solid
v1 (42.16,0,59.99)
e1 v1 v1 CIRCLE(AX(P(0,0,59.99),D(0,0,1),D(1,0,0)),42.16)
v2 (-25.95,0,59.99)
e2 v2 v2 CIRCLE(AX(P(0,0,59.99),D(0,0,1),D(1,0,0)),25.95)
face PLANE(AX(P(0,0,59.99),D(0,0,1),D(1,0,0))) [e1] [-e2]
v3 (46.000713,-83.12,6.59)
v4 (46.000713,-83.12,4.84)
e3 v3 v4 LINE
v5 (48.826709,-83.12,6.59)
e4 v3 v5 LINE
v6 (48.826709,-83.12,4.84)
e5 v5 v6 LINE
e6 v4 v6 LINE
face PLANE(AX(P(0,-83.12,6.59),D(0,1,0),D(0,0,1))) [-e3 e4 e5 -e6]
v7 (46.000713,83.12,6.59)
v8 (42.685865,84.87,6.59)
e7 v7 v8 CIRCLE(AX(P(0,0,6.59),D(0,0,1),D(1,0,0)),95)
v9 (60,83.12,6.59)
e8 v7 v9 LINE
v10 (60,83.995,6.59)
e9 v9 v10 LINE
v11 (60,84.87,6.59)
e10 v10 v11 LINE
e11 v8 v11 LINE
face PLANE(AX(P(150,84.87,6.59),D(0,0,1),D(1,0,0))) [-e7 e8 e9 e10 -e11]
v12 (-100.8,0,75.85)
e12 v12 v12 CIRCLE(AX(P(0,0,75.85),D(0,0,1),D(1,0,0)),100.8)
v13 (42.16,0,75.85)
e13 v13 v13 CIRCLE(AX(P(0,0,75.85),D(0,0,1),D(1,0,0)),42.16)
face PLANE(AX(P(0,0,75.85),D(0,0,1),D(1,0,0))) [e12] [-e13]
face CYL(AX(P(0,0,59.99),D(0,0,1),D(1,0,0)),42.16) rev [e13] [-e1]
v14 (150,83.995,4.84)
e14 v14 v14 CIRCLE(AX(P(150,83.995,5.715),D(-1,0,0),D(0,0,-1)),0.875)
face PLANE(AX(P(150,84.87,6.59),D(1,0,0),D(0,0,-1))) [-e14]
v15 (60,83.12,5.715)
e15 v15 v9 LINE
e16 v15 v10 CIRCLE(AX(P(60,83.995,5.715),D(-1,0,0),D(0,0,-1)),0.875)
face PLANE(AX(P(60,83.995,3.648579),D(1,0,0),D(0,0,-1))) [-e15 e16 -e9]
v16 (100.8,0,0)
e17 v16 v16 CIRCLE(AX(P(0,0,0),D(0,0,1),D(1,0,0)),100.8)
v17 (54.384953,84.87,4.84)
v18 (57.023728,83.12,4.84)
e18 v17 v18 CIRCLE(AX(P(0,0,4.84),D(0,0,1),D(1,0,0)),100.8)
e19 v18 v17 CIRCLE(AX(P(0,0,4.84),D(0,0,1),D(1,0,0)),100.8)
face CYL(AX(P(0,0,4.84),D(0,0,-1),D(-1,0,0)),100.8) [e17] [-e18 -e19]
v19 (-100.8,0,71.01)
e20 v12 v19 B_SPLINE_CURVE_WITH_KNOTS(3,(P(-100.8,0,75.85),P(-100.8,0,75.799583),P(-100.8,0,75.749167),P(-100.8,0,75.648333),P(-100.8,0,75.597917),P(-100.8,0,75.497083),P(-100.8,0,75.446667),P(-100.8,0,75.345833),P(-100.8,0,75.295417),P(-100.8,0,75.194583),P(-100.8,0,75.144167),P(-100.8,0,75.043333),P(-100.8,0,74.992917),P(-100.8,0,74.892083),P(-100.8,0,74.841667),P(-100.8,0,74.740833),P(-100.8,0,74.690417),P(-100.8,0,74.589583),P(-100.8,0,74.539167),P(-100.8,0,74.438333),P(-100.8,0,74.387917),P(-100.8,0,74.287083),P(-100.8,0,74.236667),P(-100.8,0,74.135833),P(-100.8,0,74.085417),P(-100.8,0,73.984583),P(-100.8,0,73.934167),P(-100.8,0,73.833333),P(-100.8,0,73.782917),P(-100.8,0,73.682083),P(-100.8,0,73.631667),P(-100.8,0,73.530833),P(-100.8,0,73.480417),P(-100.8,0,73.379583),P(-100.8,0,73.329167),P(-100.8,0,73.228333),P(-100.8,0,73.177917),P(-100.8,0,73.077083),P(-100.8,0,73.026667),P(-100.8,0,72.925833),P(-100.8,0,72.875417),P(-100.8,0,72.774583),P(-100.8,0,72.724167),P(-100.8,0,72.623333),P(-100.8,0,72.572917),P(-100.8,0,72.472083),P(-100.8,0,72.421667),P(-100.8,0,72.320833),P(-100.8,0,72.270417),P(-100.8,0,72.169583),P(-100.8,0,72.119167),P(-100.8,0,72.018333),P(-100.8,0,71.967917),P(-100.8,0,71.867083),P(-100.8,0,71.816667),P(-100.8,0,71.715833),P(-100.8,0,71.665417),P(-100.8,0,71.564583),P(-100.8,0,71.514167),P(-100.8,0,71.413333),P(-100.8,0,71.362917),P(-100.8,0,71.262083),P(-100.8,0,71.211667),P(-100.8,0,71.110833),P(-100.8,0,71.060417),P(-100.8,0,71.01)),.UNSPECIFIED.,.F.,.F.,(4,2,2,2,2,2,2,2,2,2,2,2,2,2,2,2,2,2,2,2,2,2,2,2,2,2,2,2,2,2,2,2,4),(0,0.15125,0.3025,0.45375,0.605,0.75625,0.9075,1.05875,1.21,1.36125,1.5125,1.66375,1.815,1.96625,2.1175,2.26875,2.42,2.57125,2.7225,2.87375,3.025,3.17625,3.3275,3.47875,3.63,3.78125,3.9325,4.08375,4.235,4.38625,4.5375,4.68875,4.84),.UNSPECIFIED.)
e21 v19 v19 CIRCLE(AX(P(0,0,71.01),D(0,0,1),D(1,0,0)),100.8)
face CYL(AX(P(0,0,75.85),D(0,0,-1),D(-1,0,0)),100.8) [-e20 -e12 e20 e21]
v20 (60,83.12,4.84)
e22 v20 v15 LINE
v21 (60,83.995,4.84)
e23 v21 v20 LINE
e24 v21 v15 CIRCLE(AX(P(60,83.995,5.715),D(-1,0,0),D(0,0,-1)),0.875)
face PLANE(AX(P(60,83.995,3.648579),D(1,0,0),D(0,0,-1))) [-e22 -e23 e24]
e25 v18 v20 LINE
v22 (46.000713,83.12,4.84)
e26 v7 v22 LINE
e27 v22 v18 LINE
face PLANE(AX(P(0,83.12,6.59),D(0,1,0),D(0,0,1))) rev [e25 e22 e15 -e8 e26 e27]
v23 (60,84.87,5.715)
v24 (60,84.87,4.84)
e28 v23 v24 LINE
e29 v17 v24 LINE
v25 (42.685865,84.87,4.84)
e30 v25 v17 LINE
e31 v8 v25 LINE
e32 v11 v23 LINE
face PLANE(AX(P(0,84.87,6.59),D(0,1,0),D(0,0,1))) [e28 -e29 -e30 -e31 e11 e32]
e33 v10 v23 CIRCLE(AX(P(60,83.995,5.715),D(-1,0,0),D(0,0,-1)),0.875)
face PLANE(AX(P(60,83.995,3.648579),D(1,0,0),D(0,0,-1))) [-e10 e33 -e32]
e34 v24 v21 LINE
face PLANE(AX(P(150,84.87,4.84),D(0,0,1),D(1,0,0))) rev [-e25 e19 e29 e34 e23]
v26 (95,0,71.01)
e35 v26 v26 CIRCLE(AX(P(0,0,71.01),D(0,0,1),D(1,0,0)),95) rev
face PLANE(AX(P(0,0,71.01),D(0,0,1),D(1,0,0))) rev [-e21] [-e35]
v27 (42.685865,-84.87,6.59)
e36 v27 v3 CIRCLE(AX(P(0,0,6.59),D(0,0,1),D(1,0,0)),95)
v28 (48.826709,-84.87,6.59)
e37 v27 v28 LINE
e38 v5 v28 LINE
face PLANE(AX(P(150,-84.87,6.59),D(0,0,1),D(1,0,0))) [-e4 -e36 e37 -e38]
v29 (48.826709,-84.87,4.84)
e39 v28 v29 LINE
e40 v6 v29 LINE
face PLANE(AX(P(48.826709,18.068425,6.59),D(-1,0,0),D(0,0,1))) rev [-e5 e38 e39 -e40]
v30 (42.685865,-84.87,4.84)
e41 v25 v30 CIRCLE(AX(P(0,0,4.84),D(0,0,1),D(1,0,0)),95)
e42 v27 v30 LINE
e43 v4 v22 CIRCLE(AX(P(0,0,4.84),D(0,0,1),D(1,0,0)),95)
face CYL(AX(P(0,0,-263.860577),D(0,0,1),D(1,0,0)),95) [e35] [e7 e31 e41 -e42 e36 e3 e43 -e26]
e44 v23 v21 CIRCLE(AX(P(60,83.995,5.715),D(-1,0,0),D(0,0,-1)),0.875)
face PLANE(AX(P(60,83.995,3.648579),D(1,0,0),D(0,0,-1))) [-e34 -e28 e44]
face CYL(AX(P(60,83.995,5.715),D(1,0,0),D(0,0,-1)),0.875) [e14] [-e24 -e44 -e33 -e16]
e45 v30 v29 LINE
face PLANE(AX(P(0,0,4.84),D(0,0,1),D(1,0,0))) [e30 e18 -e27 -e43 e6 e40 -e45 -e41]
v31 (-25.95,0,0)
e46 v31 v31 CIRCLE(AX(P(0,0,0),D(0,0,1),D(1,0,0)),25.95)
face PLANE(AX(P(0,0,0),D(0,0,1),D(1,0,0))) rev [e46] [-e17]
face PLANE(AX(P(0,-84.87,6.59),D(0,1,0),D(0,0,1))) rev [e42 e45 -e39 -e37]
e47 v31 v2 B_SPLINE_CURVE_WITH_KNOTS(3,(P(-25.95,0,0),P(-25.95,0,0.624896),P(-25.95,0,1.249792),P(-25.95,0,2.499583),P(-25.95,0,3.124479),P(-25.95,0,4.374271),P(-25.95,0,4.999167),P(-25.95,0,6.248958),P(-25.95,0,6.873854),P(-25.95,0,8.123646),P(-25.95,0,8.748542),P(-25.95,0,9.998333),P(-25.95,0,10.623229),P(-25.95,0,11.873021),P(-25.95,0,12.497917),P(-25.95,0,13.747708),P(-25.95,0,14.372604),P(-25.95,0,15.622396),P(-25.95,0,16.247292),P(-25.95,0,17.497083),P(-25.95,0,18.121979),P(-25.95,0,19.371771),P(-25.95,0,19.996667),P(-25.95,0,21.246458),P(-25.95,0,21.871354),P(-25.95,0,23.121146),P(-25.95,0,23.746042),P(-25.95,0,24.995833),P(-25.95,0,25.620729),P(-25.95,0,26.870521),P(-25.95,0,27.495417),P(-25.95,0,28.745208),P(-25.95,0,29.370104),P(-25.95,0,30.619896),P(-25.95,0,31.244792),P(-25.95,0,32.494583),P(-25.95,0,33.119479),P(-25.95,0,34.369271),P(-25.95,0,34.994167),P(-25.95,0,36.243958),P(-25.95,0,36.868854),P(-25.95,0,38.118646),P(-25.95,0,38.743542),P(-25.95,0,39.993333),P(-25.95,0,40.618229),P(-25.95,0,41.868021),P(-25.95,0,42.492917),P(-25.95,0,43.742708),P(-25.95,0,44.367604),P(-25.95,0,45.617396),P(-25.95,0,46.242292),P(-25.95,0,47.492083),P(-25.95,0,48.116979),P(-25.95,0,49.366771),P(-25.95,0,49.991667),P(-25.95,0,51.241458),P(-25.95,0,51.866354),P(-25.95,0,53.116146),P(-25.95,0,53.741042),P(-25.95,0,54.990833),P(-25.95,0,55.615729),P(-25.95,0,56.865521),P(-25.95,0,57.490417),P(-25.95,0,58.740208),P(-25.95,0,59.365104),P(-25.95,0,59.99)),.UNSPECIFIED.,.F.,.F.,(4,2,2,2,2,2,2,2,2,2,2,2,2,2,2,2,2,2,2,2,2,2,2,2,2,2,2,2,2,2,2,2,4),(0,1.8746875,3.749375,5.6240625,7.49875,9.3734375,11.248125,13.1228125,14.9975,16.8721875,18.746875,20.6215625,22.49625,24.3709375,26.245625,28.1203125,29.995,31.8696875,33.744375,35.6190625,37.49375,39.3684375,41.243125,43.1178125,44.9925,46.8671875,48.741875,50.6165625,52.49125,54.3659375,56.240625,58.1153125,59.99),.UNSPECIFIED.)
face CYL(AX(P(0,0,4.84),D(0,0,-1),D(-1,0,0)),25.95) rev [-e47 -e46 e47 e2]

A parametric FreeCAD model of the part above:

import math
import FreeCAD as App
import Part
import Sketcher
from FreeCAD import Vector


def add_polygon(sketch, points):
    """Adds a closed chain of lines whose ends are joined by coincident constraints."""
    first, n = sketch.GeometryCount, len(points)
    for a, b in zip(points, points[1:] + points[:1]):
        sketch.addGeometry(Part.LineSegment(App.Vector(*a, 0), App.Vector(*b, 0)), False)
    for i in range(n):
        sketch.addConstraint(Sketcher.Constraint("Coincident", first + i, 2, first + (i + 1) % n, 1))

doc = App.newDocument("Part")
body = doc.addObject("PartDesign::Body", "Body")

# Sketch on XY plane
sketch1 = body.newObject("Sketcher::SketchObject", "Sketch")
sketch1.AttachmentSupport = (doc.getObject("XY_Plane"), [""])
sketch1.MapMode = "FlatFace"
sketch1.addGeometry(Part.Circle(Vector(0, 0, 0), Vector(0, 0, 1), 101), False)
sketch1.addGeometry(Part.Circle(Vector(0, 0, 0), Vector(0, 0, 1), 26), False)
sketch1.addConstraint(Sketcher.Constraint("Coincident", 0, 3, -1, 1))
sketch1.addConstraint(Sketcher.Constraint("Coincident", 1, 3, -1, 1))
sketch1.addConstraint(Sketcher.Constraint("Diameter", 0, 201.6))
sketch1.addConstraint(Sketcher.Constraint("Diameter", 1, 51.9))
pad1 = body.newObject("PartDesign::Pad", "Pad")
pad1.Profile = sketch1
pad1.Length = 4.84

# Sketch on XY plane
sketch2 = body.newObject("Sketcher::SketchObject", "Sketch001")
sketch2.AttachmentSupport = (doc.getObject("XY_Plane"), [""])
sketch2.MapMode = "FlatFace"
sketch2.AttachmentOffset = App.Placement(Vector(0, 0, 4.84), App.Rotation())
sketch2.addGeometry(Part.Circle(Vector(0, 0, 0), Vector(0, 0, 1), 45), False)
sketch2.addGeometry(Part.Circle(Vector(0, 0, 0), Vector(0, 0, 1), 26), False)
sketch2.addConstraint(Sketcher.Constraint("Coincident", 0, 3, -1, 1))
sketch2.addConstraint(Sketcher.Constraint("Coincident", 1, 3, -1, 1))
sketch2.addConstraint(Sketcher.Constraint("Diameter", 1, 51.9))
sketch2.addConstraint(Sketcher.Constraint("Diameter", 0, 90.22))
pad2 = body.newObject("PartDesign::Pad", "Pad001")
pad2.Profile = sketch2
pad2.Length = 66.17

# Sketch on XY plane
sketch3 = body.newObject("Sketcher::SketchObject", "Sketch002")
sketch3.AttachmentSupport = (doc.getObject("XY_Plane"), [""])
sketch3.MapMode = "FlatFace"
sketch3.AttachmentOffset = App.Placement(Vector(0, 0, 71.01), App.Rotation())
sketch3.addGeometry(Part.Circle(Vector(0, 0, 0), Vector(0, 0, 1), 101), False)
sketch3.addGeometry(Part.Circle(Vector(0, 0, 0), Vector(0, 0, 1), 26), False)
sketch3.addConstraint(Sketcher.Constraint("Coincident", 0, 3, -1, 1))
sketch3.addConstraint(Sketcher.Constraint("Coincident", 1, 3, -1, 1))
sketch3.addConstraint(Sketcher.Constraint("Diameter", 0, 201.6))
sketch3.addConstraint(Sketcher.Constraint("Diameter", 1, 51.9))
pad3 = body.newObject("PartDesign::Pad", "Pad002")
pad3.Profile = sketch3
pad3.Length = 4.84

# Sketch on XY plane
sketch4 = body.newObject("Sketcher::SketchObject", "Sketch003")
sketch4.AttachmentSupport = (doc.getObject("XY_Plane"), [""])
sketch4.MapMode = "FlatFace"
sketch4.AttachmentOffset = App.Placement(Vector(0, 0, 75.85), App.Rotation())
sketch4.addGeometry(Part.Circle(Vector(0, 0, 0), Vector(0, 0, 1), 42), False)
sketch4.addConstraint(Sketcher.Constraint("Coincident", 0, 3, -1, 1))
sketch4.addConstraint(Sketcher.Constraint("Diameter", 0, 84.32))
pocket1 = body.newObject("PartDesign::Pocket", "Pocket")
pocket1.Profile = sketch4
pocket1.Length = 15.86

# Sketch on XY plane
sketch5 = body.newObject("Sketcher::SketchObject", "Sketch004")
sketch5.AttachmentSupport = (doc.getObject("XY_Plane"), [""])
sketch5.MapMode = "FlatFace"
sketch5.AttachmentOffset = App.Placement(Vector(0, 0, 4.84), App.Rotation())
sketch5.addGeometry(Part.Circle(Vector(0, 0, 0), Vector(0, 0, 1), 95), False)
sketch5.addGeometry(Part.Circle(Vector(0, 0, 0), Vector(0, 0, 1), 45), False)
sketch5.addConstraint(Sketcher.Constraint("Coincident", 0, 3, -1, 1))
sketch5.addConstraint(Sketcher.Constraint("Coincident", 1, 3, -1, 1))
sketch5.addConstraint(Sketcher.Constraint("Diameter", 0, 190.0))
sketch5.addConstraint(Sketcher.Constraint("Diameter", 1, 90.22))
pad4 = body.newObject("PartDesign::Pad", "Pad003")
pad4.Profile = sketch5
pad4.Length = 66.17

# Sketch on XY plane
sketch6 = body.newObject("Sketcher::SketchObject", "Sketch005")
sketch6.AttachmentSupport = (doc.getObject("XY_Plane"), [""])
sketch6.MapMode = "FlatFace"
sketch6.AttachmentOffset = App.Placement(Vector(0, 0, 4.84), App.Rotation())
add_polygon(sketch6, [(0, -83.1), (0, -84.9), (150, -84.9), (150, -83.1)])  # lines 0-3
sketch6.addConstraint(Sketcher.Constraint("Vertical", 0))
sketch6.addConstraint(Sketcher.Constraint("Horizontal", 1))
sketch6.addConstraint(Sketcher.Constraint("Vertical", 2))
sketch6.addConstraint(Sketcher.Constraint("Horizontal", 3))
sketch6.addConstraint(Sketcher.Constraint("PointOnObject", 0, 2, -2))
sketch6.addConstraint(Sketcher.Constraint("DistanceX", 1, 1, 1, 2, 150.0))
sketch6.addConstraint(Sketcher.Constraint("DistanceY", 0, 2, 0, 1, 1.75))
sketch6.addConstraint(Sketcher.Constraint("DistanceY", 0, 2, -1, 1, 84.87))
pad5 = body.newObject("PartDesign::Pad", "Pad004")
pad5.Profile = sketch6
pad5.Length = 1.75

# Sketch on YZ plane
sketch7 = body.newObject("Sketcher::SketchObject", "Sketch006")
sketch7.AttachmentSupport = (doc.getObject("YZ_Plane"), [""])
sketch7.MapMode = "FlatFace"
sketch7.AttachmentOffset = App.Placement(Vector(0, 0, 150), App.Rotation())
sketch7.addGeometry(Part.LineSegment(Vector(-83.1, 6.6, 0), Vector(-84, 6.6, 0)), False)
sketch7.addGeometry(Part.ArcOfCircle(Part.Circle(Vector(-84, 5.7, 0), Vector(0, 0, 1), 0.9), math.radians(45), math.radians(90)), False)
sketch7.addGeometry(Part.ArcOfCircle(Part.Circle(Vector(-84, 5.7, 0), Vector(0, 0, 1), 0.9), math.radians(0), math.radians(45)), False)
sketch7.addGeometry(Part.LineSegment(Vector(-83.1, 5.7, 0), Vector(-83.1, 6.6, 0)), False)
sketch7.addGeometry(Part.LineSegment(Vector(-83.1, 4.8, 0), Vector(-83.1, 5.7, 0)), False)
sketch7.addGeometry(Part.ArcOfCircle(Part.Circle(Vector(-84, 5.7, 0), Vector(0, 0, 1), 0.9), math.radians(-90), math.radians(0)), False)
sketch7.addGeometry(Part.LineSegment(Vector(-84, 4.8, 0), Vector(-83.1, 4.8, 0)), False)
sketch7.addGeometry(Part.ArcOfCircle(Part.Circle(Vector(-84, 5.7, 0), Vector(0, 0, 1), 0.9), math.radians(-135), math.radians(-90)), False)
sketch7.addGeometry(Part.ArcOfCircle(Part.Circle(Vector(-84, 5.7, 0), Vector(0, 0, 1), 0.9), math.radians(-180), math.radians(-135)), False)
sketch7.addGeometry(Part.LineSegment(Vector(-84.9, 5.7, 0), Vector(-84.9, 4.8, 0)), False)
sketch7.addGeometry(Part.LineSegment(Vector(-84.9, 4.8, 0), Vector(-84, 4.8, 0)), False)
sketch7.addGeometry(Part.ArcOfCircle(Part.Circle(Vector(-84, 5.7, 0), Vector(0, 0, 1), 0.9), math.radians(90), math.radians(180)), False)
sketch7.addGeometry(Part.LineSegment(Vector(-84, 6.6, 0), Vector(-84.9, 6.6, 0)), False)
sketch7.addGeometry(Part.LineSegment(Vector(-84.9, 6.6, 0), Vector(-84.9, 5.7, 0)), False)
sketch7.addConstraint(Sketcher.Constraint("Tangent", 0, 2, 1, 2))
sketch7.addConstraint(Sketcher.Constraint("Tangent", 1, 1, 2, 2))
sketch7.addConstraint(Sketcher.Constraint("Tangent", 2, 1, 3, 1))
sketch7.addConstraint(Sketcher.Constraint("Coincident", 3, 2, 0, 1))
sketch7.addConstraint(Sketcher.Constraint("Tangent", 4, 2, 5, 2))
sketch7.addConstraint(Sketcher.Constraint("Tangent", 5, 1, 6, 1))
sketch7.addConstraint(Sketcher.Constraint("Coincident", 6, 2, 4, 1))
sketch7.addConstraint(Sketcher.Constraint("Tangent", 7, 1, 8, 2))
sketch7.addConstraint(Sketcher.Constraint("Tangent", 8, 1, 9, 1))
sketch7.addConstraint(Sketcher.Constraint("Coincident", 9, 2, 10, 1))
sketch7.addConstraint(Sketcher.Constraint("Tangent", 10, 2, 7, 2))
sketch7.addConstraint(Sketcher.Constraint("Tangent", 11, 1, 12, 1))
sketch7.addConstraint(Sketcher.Constraint("Coincident", 12, 2, 13, 1))
sketch7.addConstraint(Sketcher.Constraint("Tangent", 13, 2, 11, 2))
sketch7.addConstraint(Sketcher.Constraint("Horizontal", 0))
sketch7.addConstraint(Sketcher.Constraint("Vertical", 3))
sketch7.addConstraint(Sketcher.Constraint("Vertical", 4))
sketch7.addConstraint(Sketcher.Constraint("Horizontal", 6))
sketch7.addConstraint(Sketcher.Constraint("Vertical", 9))
sketch7.addConstraint(Sketcher.Constraint("Horizontal", 10))
sketch7.addConstraint(Sketcher.Constraint("Horizontal", 12))
sketch7.addConstraint(Sketcher.Constraint("Vertical", 13))
sketch7.addConstraint(Sketcher.Constraint("Coincident", 5, 3, 1, 3))
sketch7.addConstraint(Sketcher.Constraint("Coincident", 7, 3, 1, 3))
sketch7.addConstraint(Sketcher.Constraint("Coincident", 11, 3, 1, 3))
sketch7.addConstraint(Sketcher.Constraint("Coincident", 4, 2, 2, 1))
sketch7.addConstraint(Sketcher.Constraint("Coincident", 13, 2, 8, 1))
sketch7.addConstraint(Sketcher.Constraint("Equal", 5, 7))
sketch7.addConstraint(Sketcher.Constraint("Radius", 1, 0.875))
sketch7.addConstraint(Sketcher.Constraint("DistanceY", -1, 1, 0, 2, 6.59))
sketch7.addConstraint(Sketcher.Constraint("DistanceX", 2, 1, -1, 1, 83.12))
sketch7.addConstraint(Sketcher.Constraint("DistanceX", 1, 1, -1, 1, 83.376282))
sketch7.addConstraint(Sketcher.Constraint("DistanceX", 7, 1, -1, 1, 84.613718))
pocket2 = body.newObject("PartDesign::Pocket", "Pocket001")
pocket2.Profile = sketch7
pocket2.Length = 90
doc.recompute()

mirrored = body.newObject("PartDesign::Mirrored", "Mirrored")
mirrored.Originals = [pad4, pad5, pocket2]
mirrored.MirrorPlane = (doc.getObject("XZ_Plane"), [""])
body.Tip = mirrored

# Sketch on XZ plane
sketch8 = body.newObject("Sketcher::SketchObject", "Sketch007")
sketch8.AttachmentSupport = (doc.getObject("XZ_Plane"), [""])
sketch8.MapMode = "FlatFace"
sketch8.AttachmentOffset = App.Placement(Vector(0, 0, 84.87), App.Rotation())
add_polygon(sketch8, [(48.8, 6.6), (48.8, 4.8), (150, 4.8), (150, 6.6)])  # lines 0-3
sketch8.addConstraint(Sketcher.Constraint("Vertical", 0))
sketch8.addConstraint(Sketcher.Constraint("Horizontal", 1))
sketch8.addConstraint(Sketcher.Constraint("Vertical", 2))
sketch8.addConstraint(Sketcher.Constraint("Horizontal", 3))
sketch8.addConstraint(Sketcher.Constraint("DistanceX", -1, 1, 1, 2, 150.0))
sketch8.addConstraint(Sketcher.Constraint("DistanceY", 0, 2, 0, 1, 1.75))
sketch8.addConstraint(Sketcher.Constraint("DistanceY", -1, 1, 0, 2, 4.84))
sketch8.addConstraint(Sketcher.Constraint("DistanceX", 1, 1, 1, 2, 101.173291))
pocket3 = body.newObject("PartDesign::Pocket", "Pocket002")
pocket3.Profile = sketch8
pocket3.Length = 1.75

doc.recompute()
